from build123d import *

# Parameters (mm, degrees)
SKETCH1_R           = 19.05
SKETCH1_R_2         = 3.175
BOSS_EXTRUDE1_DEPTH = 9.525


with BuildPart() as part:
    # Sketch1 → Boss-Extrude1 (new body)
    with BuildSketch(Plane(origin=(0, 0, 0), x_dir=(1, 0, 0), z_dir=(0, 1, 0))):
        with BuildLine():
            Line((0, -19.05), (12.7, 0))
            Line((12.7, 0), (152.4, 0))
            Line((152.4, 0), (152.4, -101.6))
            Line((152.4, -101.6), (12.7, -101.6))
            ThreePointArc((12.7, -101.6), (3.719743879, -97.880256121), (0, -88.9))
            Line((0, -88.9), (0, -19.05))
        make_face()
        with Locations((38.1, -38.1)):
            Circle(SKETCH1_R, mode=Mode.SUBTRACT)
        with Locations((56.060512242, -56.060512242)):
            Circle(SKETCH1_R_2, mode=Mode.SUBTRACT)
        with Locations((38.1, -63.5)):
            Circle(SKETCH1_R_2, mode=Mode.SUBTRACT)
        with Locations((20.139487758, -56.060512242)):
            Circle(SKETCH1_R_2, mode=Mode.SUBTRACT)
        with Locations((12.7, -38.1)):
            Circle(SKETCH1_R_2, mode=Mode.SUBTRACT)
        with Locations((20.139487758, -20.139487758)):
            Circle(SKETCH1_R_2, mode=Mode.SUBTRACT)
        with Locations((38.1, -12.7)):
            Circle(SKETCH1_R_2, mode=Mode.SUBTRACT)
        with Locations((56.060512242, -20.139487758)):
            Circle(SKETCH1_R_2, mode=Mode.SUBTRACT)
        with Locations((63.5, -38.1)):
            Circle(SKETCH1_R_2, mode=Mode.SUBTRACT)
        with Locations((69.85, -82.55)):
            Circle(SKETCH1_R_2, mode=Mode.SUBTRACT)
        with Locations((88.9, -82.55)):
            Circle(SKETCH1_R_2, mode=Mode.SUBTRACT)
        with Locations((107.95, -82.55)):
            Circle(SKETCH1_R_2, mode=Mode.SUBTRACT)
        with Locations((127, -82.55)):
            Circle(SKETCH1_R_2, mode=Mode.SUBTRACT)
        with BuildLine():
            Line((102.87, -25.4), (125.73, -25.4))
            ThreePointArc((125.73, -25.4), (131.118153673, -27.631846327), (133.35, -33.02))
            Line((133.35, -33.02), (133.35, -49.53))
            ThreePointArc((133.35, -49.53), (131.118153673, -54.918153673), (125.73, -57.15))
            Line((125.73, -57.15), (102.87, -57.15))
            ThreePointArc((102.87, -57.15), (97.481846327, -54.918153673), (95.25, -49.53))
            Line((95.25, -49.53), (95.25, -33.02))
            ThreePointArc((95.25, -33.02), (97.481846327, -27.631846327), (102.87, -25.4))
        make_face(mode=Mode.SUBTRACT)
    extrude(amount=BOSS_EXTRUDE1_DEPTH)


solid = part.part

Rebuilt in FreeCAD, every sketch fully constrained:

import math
import FreeCAD as App
import Part
import Sketcher

V = App.Vector
Q = App.Units.Quantity

doc = App.newDocument("Part")
body = doc.addObject("PartDesign::Body", "Body")

# Sketch on XZ plane
sketch1 = body.newObject("Sketcher::SketchObject", "Sketch")
sketch1.AttachmentSupport = (doc.getObject("XZ_Plane"), [""])
sketch1.MapMode = "FlatFace"
sketch1.addGeometry([
    Part.LineSegment(V(12.7, 0, 0), V(0, 19.1, 0)),  # 0
    Part.LineSegment(V(0, 19.1, 0), V(0, 88.9, 0)),  # 1
    Part.ArcOfCircle(Part.Circle(V(12.7, 88.9, 0), V(0, 0, 1), 12.7), math.radians(90), math.radians(180)),  # 2
    Part.LineSegment(V(12.7, 101.6, 0), V(152.4, 101.6, 0)),  # 3
    Part.LineSegment(V(152.4, 101.6, 0), V(152.4, 0, 0)),  # 4
    Part.LineSegment(V(152.4, 0, 0), V(12.7, 0, 0)),  # 5
    Part.Circle(V(127, 82.5, 0), V(0, 0, 1), 3.2),  # 6
    Part.Circle(V(108, 82.5, 0), V(0, 0, 1), 3.2),  # 7
    Part.Circle(V(88.9, 82.5, 0), V(0, 0, 1), 3.2),  # 8
    Part.Circle(V(69.8, 82.5, 0), V(0, 0, 1), 3.2),  # 9
    Part.Circle(V(56.1, 56.1, 0), V(0, 0, 1), 3.2),  # 10
    Part.Circle(V(38.1, 63.5, 0), V(0, 0, 1), 3.2),  # 11
    Part.Circle(V(20.1, 56.1, 0), V(0, 0, 1), 3.2),  # 12
    Part.LineSegment(V(102.9, 25.4, 0), V(125.7, 25.4, 0)),  # 13
    Part.ArcOfCircle(Part.Circle(V(125.7, 33, 0), V(0, 0, 1), 7.6), math.radians(-90), math.radians(0)),  # 14
    Part.LineSegment(V(133.3, 33, 0), V(133.3, 49.5, 0)),  # 15
    Part.ArcOfCircle(Part.Circle(V(125.7, 49.5, 0), V(0, 0, 1), 7.6), math.radians(0), math.radians(90)),  # 16
    Part.LineSegment(V(125.7, 57.1, 0), V(102.9, 57.1, 0)),  # 17
    Part.ArcOfCircle(Part.Circle(V(102.9, 49.5, 0), V(0, 0, 1), 7.6), math.radians(90), math.radians(180)),  # 18
    Part.LineSegment(V(95.2, 49.5, 0), V(95.2, 33, 0)),  # 19
    Part.ArcOfCircle(Part.Circle(V(102.9, 33, 0), V(0, 0, 1), 7.6), math.radians(180), math.radians(270)),  # 20
    Part.Circle(V(63.5, 38.1, 0), V(0, 0, 1), 3.2),  # 21
    Part.Circle(V(38.1, 38.1, 0), V(0, 0, 1), 19.1),  # 22
    Part.Circle(V(12.7, 38.1, 0), V(0, 0, 1), 3.2),  # 23
    Part.Circle(V(56.1, 20.1, 0), V(0, 0, 1), 3.2),  # 24
    Part.Circle(V(20.1, 20.1, 0), V(0, 0, 1), 3.2),  # 25
    Part.Circle(V(38.1, 12.7, 0), V(0, 0, 1), 3.2),  # 26
], False)
sketch1.addConstraint([
    Sketcher.Constraint("Coincident", 0, 2, 1, 1),
    Sketcher.Constraint("Tangent", 1, 2, 2, 2),
    Sketcher.Constraint("Tangent", 2, 1, 3, 1),
    Sketcher.Constraint("Coincident", 3, 2, 4, 1),
    Sketcher.Constraint("Coincident", 4, 2, 5, 1),
    Sketcher.Constraint("Coincident", 5, 2, 0, 1),
    Sketcher.Constraint("Tangent", 13, 2, 14, 1),
    Sketcher.Constraint("Tangent", 14, 2, 15, 1),
    Sketcher.Constraint("Tangent", 15, 2, 16, 1),
    Sketcher.Constraint("Tangent", 16, 2, 17, 1),
    Sketcher.Constraint("Tangent", 17, 2, 18, 1),
    Sketcher.Constraint("Tangent", 18, 2, 19, 1),
    Sketcher.Constraint("Tangent", 19, 2, 20, 1),
    Sketcher.Constraint("Tangent", 20, 2, 13, 1),
    Sketcher.Constraint("Vertical", 1),
    Sketcher.Constraint("Horizontal", 3),
    Sketcher.Constraint("Vertical", 4),
    Sketcher.Constraint("Horizontal", 5),
    Sketcher.Constraint("Horizontal", 13),
    Sketcher.Constraint("Vertical", 15),
    Sketcher.Constraint("Horizontal", 17),
    Sketcher.Constraint("Vertical", 19),
    Sketcher.Constraint("Equal", 6, 7),
    Sketcher.Constraint("Equal", 7, 8),
    Sketcher.Constraint("Equal", 8, 9),
    Sketcher.Constraint("Equal", 9, 10),
    Sketcher.Constraint("Equal", 10, 11),
    Sketcher.Constraint("Equal", 11, 12),
    Sketcher.Constraint("Equal", 14, 16),
    Sketcher.Constraint("Equal", 16, 18),
    Sketcher.Constraint("Equal", 18, 20),
    Sketcher.Constraint("Equal", 12, 21),
    Sketcher.Constraint("Equal", 21, 23),
    Sketcher.Constraint("Equal", 23, 24),
    Sketcher.Constraint("Equal", 24, 25),
    Sketcher.Constraint("Equal", 25, 26),
    Sketcher.Constraint("PointOnObject", 0, 2, -2),
    Sketcher.Constraint("PointOnObject", 4, 2, -1),
    Sketcher.Constraint("Horizontal", 6, 3, 7, 3),
    Sketcher.Constraint("Horizontal", 7, 3, 8, 3),
    Sketcher.Constraint("Horizontal", 8, 3, 9, 3),
    Sketcher.Constraint("Horizontal", 10, 3, 12, 3),
    Sketcher.Constraint("Horizontal", 21, 3, 22, 3),
    Sketcher.Constraint("Horizontal", 22, 3, 23, 3),
    Sketcher.Constraint("Horizontal", 24, 3, 25, 3),
    Sketcher.Constraint("Vertical", 11, 3, 22, 3),
    Sketcher.Constraint("Vertical", 2, 3, 23, 3),
    Sketcher.Constraint("Vertical", 10, 3, 24, 3),
    Sketcher.Constraint("Vertical", 12, 3, 25, 3),
    Sketcher.Constraint("Vertical", 22, 3, 26, 3),
    Sketcher.Constraint("Vertical", 2, 1, 5, 2),
    Sketcher.Constraint("Diameter", 22, Q("1.5 in")),
    Sketcher.Constraint("Radius", 2, Q("0.5 in")),
    Sketcher.Constraint("Radius", 14, Q("0.3 in")),
    Sketcher.Constraint("Diameter", 6, Q("0.25 in")),
    Sketcher.Constraint("DistanceY", 4, 2, 4, 1, Q("4 in")),
    Sketcher.Constraint("DistanceX", 3, 1, 3, 2, Q("5.5 in")),
    Sketcher.Constraint("DistanceX", 13, 1, 13, 2, Q("0.9 in")),
    Sketcher.Constraint("DistanceX", -1, 1, 6, 3, Q("5 in")),
    Sketcher.Constraint("DistanceY", -1, 1, 13, 2, Q("1 in")),
    Sketcher.Constraint("DistanceX", 2, 3, 8, 3, Q("3 in")),
    Sketcher.Constraint("DistanceX", 2, 3, 11, 3, Q("1 in")),
    Sketcher.Constraint("DistanceY", 11, 3, 2, 3, Q("1 in")),
    Sketcher.Constraint("DistanceX", 11, 3, 21, 3, Q("1 in")),
    Sketcher.Constraint("DistanceY", 21, 3, 11, 3, Q("1 in")),
    Sketcher.Constraint("DistanceY", 26, 3, 22, 3, Q("1 in")),
    Sketcher.Constraint("DistanceY", 17, 2, 7, 3, Q("1 in")),
    Sketcher.Constraint("DistanceY", 1, 1, 1, 2, Q("2.75 in")),
    Sketcher.Constraint("DistanceY", 15, 1, 15, 2, Q("0.65 in")),
    Sketcher.Constraint("DistanceX", 9, 3, 7, 3, Q("1.5 in")),
    Sketcher.Constraint("DistanceX", 7, 3, 14, 3, Q("0.7 in")),
    Sketcher.Constraint("DistanceX", -1, 1, 7, 3, Q("4.25 in")),
    Sketcher.Constraint("DistanceX", -1, 1, 10, 3, Q("56.060512 mm")),
    Sketcher.Constraint("DistanceY", -1, 1, 10, 3, Q("56.060512 mm")),
    Sketcher.Constraint("DistanceX", -1, 1, 12, 3, Q("20.139488 mm")),
    Sketcher.Constraint("DistanceY", -1, 1, 24, 3, Q("20.139488 mm")),
])
pad1 = body.newObject("PartDesign::Pad", "Pad")
pad1.Profile = sketch1
pad1.Length = Q("0.375 in")
pad1.Reversed = True

doc.recompute()
